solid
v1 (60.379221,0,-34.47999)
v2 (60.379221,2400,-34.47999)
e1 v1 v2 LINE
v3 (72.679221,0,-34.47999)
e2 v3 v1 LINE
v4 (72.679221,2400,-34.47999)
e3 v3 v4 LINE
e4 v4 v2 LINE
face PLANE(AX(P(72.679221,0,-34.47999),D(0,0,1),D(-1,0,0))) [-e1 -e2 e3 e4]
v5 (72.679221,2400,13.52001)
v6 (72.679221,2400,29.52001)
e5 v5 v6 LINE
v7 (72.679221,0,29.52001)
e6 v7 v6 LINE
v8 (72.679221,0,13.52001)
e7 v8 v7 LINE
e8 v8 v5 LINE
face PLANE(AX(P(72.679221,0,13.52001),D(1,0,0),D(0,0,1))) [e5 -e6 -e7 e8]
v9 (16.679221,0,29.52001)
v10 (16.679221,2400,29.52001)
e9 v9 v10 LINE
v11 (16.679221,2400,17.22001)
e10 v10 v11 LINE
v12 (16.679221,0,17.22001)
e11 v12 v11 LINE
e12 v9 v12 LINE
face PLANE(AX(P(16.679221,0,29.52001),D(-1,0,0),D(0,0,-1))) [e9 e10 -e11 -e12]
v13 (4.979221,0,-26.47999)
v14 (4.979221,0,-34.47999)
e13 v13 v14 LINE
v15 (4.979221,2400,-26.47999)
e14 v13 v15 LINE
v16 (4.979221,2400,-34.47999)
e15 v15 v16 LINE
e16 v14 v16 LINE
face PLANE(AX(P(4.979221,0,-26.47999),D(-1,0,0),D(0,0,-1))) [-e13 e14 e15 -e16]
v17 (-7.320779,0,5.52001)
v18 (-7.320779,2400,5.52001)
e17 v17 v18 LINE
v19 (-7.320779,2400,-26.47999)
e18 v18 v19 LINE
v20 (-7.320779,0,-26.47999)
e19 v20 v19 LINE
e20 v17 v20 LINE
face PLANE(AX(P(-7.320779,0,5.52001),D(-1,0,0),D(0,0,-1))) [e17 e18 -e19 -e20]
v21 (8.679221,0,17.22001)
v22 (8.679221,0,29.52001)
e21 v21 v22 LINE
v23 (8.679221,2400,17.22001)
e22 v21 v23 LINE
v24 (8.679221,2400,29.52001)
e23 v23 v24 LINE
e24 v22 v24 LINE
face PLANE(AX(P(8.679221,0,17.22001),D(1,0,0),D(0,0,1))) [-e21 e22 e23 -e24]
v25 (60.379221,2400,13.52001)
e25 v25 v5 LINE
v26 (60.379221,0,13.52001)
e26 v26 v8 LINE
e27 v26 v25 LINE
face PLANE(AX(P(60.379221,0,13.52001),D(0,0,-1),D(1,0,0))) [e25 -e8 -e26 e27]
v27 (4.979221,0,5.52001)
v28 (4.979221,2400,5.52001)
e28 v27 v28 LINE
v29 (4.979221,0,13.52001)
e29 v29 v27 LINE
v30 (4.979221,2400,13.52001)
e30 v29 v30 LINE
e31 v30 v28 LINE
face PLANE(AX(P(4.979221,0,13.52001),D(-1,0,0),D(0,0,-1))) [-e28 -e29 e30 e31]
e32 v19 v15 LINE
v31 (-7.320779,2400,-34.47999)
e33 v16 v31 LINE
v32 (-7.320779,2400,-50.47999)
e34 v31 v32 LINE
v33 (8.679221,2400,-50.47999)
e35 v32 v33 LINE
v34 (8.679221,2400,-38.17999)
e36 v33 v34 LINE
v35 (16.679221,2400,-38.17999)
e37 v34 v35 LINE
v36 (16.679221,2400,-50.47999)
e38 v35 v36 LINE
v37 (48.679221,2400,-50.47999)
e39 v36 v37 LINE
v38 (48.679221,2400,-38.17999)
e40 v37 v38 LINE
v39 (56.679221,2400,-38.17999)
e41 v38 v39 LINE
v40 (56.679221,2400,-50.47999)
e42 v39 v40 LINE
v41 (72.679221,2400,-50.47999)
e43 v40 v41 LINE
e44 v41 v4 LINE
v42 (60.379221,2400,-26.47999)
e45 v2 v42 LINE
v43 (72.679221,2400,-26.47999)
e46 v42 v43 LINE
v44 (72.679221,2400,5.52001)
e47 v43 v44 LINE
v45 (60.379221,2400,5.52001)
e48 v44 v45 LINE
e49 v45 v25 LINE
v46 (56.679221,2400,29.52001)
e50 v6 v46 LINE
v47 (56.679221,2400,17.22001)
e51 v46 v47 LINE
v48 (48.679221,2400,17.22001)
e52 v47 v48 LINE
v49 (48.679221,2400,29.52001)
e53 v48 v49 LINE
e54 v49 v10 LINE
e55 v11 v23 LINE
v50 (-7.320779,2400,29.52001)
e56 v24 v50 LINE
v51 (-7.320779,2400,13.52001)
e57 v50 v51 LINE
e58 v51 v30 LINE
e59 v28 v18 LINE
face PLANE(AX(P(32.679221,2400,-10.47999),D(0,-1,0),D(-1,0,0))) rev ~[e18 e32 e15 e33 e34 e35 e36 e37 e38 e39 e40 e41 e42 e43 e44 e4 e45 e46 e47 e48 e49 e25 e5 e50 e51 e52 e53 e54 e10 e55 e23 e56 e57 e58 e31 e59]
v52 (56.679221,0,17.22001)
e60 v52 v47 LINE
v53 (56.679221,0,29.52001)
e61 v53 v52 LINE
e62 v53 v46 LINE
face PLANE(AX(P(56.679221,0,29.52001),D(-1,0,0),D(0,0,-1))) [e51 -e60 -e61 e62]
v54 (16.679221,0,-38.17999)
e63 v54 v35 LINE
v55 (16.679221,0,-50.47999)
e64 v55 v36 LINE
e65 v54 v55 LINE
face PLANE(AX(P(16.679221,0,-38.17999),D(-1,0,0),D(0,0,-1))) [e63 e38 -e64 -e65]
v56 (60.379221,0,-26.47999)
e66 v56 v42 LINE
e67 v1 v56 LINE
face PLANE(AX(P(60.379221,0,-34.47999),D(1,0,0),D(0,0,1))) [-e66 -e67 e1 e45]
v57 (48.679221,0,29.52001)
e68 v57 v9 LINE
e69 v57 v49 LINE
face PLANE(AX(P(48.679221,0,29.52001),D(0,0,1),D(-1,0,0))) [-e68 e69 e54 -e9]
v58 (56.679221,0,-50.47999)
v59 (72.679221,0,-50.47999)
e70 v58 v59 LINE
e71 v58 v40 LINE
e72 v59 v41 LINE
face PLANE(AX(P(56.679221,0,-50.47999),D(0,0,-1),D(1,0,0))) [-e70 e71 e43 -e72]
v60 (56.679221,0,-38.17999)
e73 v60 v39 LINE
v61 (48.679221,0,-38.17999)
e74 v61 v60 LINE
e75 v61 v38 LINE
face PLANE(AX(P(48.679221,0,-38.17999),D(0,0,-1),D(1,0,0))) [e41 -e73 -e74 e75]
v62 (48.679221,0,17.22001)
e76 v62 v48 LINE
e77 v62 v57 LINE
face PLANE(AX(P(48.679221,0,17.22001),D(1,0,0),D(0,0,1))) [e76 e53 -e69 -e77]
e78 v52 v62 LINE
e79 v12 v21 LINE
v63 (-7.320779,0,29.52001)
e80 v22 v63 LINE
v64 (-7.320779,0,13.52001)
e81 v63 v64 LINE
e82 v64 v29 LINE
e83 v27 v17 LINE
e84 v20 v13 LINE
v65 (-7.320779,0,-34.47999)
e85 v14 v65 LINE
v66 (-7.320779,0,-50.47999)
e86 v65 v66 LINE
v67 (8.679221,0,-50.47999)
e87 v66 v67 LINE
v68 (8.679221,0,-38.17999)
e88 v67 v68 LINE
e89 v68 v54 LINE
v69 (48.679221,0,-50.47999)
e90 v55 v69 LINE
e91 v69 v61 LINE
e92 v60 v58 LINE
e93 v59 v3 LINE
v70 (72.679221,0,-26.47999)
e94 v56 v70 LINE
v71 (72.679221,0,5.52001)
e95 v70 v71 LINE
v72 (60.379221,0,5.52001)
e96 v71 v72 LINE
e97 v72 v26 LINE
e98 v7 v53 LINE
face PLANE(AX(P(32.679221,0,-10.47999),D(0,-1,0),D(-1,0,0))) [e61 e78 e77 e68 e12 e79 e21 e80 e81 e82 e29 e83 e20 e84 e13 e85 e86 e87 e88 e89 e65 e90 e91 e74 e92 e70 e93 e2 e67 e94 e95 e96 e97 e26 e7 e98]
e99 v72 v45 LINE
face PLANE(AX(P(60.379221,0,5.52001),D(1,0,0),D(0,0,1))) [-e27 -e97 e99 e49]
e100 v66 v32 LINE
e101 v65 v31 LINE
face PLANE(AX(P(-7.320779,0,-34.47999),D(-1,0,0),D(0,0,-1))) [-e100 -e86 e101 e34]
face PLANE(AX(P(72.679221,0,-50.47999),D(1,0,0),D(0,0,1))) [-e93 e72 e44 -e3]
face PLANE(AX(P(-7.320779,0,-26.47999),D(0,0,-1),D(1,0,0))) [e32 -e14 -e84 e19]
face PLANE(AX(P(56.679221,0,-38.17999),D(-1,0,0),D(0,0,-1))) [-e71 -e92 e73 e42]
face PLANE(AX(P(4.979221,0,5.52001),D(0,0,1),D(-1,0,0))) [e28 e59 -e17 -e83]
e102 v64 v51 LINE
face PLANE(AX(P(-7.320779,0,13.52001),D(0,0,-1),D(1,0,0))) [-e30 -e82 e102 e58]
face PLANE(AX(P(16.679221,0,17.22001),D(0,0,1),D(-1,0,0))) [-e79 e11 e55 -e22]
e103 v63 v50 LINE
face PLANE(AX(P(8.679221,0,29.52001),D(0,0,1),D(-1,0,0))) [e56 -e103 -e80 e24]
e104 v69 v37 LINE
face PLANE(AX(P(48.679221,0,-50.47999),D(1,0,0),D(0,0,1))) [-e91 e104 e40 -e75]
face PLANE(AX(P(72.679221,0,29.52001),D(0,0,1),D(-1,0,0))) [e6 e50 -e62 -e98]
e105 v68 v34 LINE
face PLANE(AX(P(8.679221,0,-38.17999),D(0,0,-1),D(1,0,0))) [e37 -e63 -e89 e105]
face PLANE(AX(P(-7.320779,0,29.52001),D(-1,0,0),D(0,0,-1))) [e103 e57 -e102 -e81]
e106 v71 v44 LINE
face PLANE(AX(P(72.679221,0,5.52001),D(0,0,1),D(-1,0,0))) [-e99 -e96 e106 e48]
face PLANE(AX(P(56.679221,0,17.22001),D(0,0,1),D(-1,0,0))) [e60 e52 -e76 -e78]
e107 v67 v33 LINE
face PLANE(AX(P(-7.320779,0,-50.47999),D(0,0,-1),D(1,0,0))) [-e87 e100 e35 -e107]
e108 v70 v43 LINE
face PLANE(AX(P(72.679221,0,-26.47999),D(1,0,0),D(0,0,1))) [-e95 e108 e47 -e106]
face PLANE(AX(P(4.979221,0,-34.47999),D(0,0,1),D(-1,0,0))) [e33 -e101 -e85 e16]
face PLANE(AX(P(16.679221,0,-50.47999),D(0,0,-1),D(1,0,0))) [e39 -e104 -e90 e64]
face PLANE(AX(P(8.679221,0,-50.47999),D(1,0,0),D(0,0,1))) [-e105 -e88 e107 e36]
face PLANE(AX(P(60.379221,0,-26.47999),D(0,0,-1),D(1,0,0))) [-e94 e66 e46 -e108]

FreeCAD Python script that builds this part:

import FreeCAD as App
import Part
import Sketcher
Q = App.Units.Quantity


def add_polygon(sketch, points):
    """Adds a closed chain of lines whose ends are joined by coincident constraints."""
    first, n = sketch.GeometryCount, len(points)
    for a, b in zip(points, points[1:] + points[:1]):
        sketch.addGeometry(Part.LineSegment(App.Vector(*a, 0), App.Vector(*b, 0)), False)
    for i in range(n):
        sketch.addConstraint(Sketcher.Constraint("Coincident", first + i, 2, first + (i + 1) % n, 1))

doc = App.newDocument("Part")
body = doc.addObject("PartDesign::Body", "Body")

# Sketch on XZ plane
sketch1 = doc.addObject("Sketcher::SketchObject", "Sketch")
body.addObject(sketch1)
sketch1.AttachmentSupport = (doc.XZ_Plane, [""])
sketch1.MapMode = "FlatFace"
add_polygon(sketch1, [(-7, -50), (-7, -34), (5, -34), (5, -26), (-7, -26), (-7, 6), (5, 6), (5, 14), (-7, 14), (-7, 30), (9, 30), (9, 17), (17, 17), (17, 30), (49, 30), (49, 17), (57, 17), (57, 30), (73, 30), (73, 14), (60, 14), (60, 6), (73, 6), (73, -26), (60, -26), (60, -34), (73, -34), (73, -50), (57, -50), (57, -38), (49, -38), (49, -50), (17, -50), (17, -38), (9, -38), (9, -50)])  # lines 0-35
sketch1.addConstraint(Sketcher.Constraint("Vertical", 0))
sketch1.addConstraint(Sketcher.Constraint("Horizontal", 1))
sketch1.addConstraint(Sketcher.Constraint("Vertical", 2))
sketch1.addConstraint(Sketcher.Constraint("Horizontal", 3))
sketch1.addConstraint(Sketcher.Constraint("Vertical", 4))
sketch1.addConstraint(Sketcher.Constraint("Horizontal", 5))
sketch1.addConstraint(Sketcher.Constraint("Vertical", 6))
sketch1.addConstraint(Sketcher.Constraint("Horizontal", 7))
sketch1.addConstraint(Sketcher.Constraint("Vertical", 8))
sketch1.addConstraint(Sketcher.Constraint("Horizontal", 9))
sketch1.addConstraint(Sketcher.Constraint("Vertical", 10))
sketch1.addConstraint(Sketcher.Constraint("Horizontal", 11))
sketch1.addConstraint(Sketcher.Constraint("Vertical", 12))
sketch1.addConstraint(Sketcher.Constraint("Horizontal", 13))
sketch1.addConstraint(Sketcher.Constraint("Vertical", 14))
sketch1.addConstraint(Sketcher.Constraint("Horizontal", 15))
sketch1.addConstraint(Sketcher.Constraint("Vertical", 16))
sketch1.addConstraint(Sketcher.Constraint("Horizontal", 17))
sketch1.addConstraint(Sketcher.Constraint("Vertical", 18))
sketch1.addConstraint(Sketcher.Constraint("Horizontal", 19))
sketch1.addConstraint(Sketcher.Constraint("Vertical", 20))
sketch1.addConstraint(Sketcher.Constraint("Horizontal", 21))
sketch1.addConstraint(Sketcher.Constraint("Vertical", 22))
sketch1.addConstraint(Sketcher.Constraint("Horizontal", 23))
sketch1.addConstraint(Sketcher.Constraint("Vertical", 24))
sketch1.addConstraint(Sketcher.Constraint("Horizontal", 25))
sketch1.addConstraint(Sketcher.Constraint("Vertical", 26))
sketch1.addConstraint(Sketcher.Constraint("Horizontal", 27))
sketch1.addConstraint(Sketcher.Constraint("Vertical", 28))
sketch1.addConstraint(Sketcher.Constraint("Horizontal", 29))
sketch1.addConstraint(Sketcher.Constraint("Vertical", 30))
sketch1.addConstraint(Sketcher.Constraint("Horizontal", 31))
sketch1.addConstraint(Sketcher.Constraint("Vertical", 32))
sketch1.addConstraint(Sketcher.Constraint("Horizontal", 33))
sketch1.addConstraint(Sketcher.Constraint("Vertical", 34))
sketch1.addConstraint(Sketcher.Constraint("Horizontal", 35))
sketch1.addConstraint(Sketcher.Constraint("Horizontal", 9, 2, 12, 2))
sketch1.addConstraint(Sketcher.Constraint("Horizontal", 11, 2, 14, 2))
sketch1.addConstraint(Sketcher.Constraint("Horizontal", 13, 2, 16, 2))
sketch1.addConstraint(Sketcher.Constraint("Horizontal", 7, 2, 18, 2))
sketch1.addConstraint(Sketcher.Constraint("Horizontal", 5, 2, 20, 2))
sketch1.addConstraint(Sketcher.Constraint("Horizontal", 3, 2, 22, 2))
sketch1.addConstraint(Sketcher.Constraint("Horizontal", 1, 2, 24, 2))
sketch1.addConstraint(Sketcher.Constraint("Horizontal", 27, 2, 30, 2))
sketch1.addConstraint(Sketcher.Constraint("Horizontal", 29, 2, 32, 2))
sketch1.addConstraint(Sketcher.Constraint("Horizontal", 31, 2, 34, 2))
sketch1.addConstraint(Sketcher.Constraint("Vertical", 0, 2, 3, 2))
sketch1.addConstraint(Sketcher.Constraint("Vertical", 2, 2, 5, 2))
sketch1.addConstraint(Sketcher.Constraint("Vertical", 4, 2, 7, 2))
sketch1.addConstraint(Sketcher.Constraint("Vertical", 18, 2, 21, 2))
sketch1.addConstraint(Sketcher.Constraint("Vertical", 20, 2, 23, 2))
sketch1.addConstraint(Sketcher.Constraint("Vertical", 22, 2, 25, 2))
sketch1.addConstraint(Sketcher.Constraint("Vertical", 16, 2, 27, 2))
sketch1.addConstraint(Sketcher.Constraint("Vertical", 14, 2, 29, 2))
sketch1.addConstraint(Sketcher.Constraint("Vertical", 12, 2, 31, 2))
sketch1.addConstraint(Sketcher.Constraint("Vertical", 10, 2, 33, 2))
sketch1.addConstraint(Sketcher.Constraint("Equal", 11, 15))
sketch1.addConstraint(Sketcher.Constraint("Equal", 9, 17))
sketch1.addConstraint(Sketcher.Constraint("Equal", 7, 19))
sketch1.addConstraint(Sketcher.Constraint("Equal", 35, 0))
sketch1.addConstraint(Sketcher.Constraint("Equal", 33, 2))
sketch1.addConstraint(Sketcher.Constraint("Equal", 31, 4))
sketch1.addConstraint(Sketcher.Constraint("Equal", 2, 6))
sketch1.addConstraint(Sketcher.Constraint("Equal", 0, 8))
sketch1.addConstraint(Sketcher.Constraint("Equal", 25, 10))
sketch1.addConstraint(Sketcher.Constraint("Equal", 16, 28))
sketch1.addConstraint(Sketcher.Constraint("DistanceX", 9, 1, 9, 2, Q("16 mm")))
sketch1.addConstraint(Sketcher.Constraint("DistanceX", 11, 1, 11, 2, Q("8 mm")))
sketch1.addConstraint(Sketcher.Constraint("DistanceX", 13, 1, 13, 2, Q("32 mm")))
sketch1.addConstraint(Sketcher.Constraint("DistanceX", 1, 1, 1, 2, Q("12.3 mm")))
sketch1.addConstraint(Sketcher.Constraint("DistanceX", 0, 2, -1, 1, Q("7.320779 mm")))
sketch1.addConstraint(Sketcher.Constraint("DistanceY", 0, 2, -1, 1, Q("34.47999 mm")))
pad1 = doc.addObject("PartDesign::Pad", "Pad")
body.addObject(pad1)
pad1.Profile = sketch1
pad1.Length = 2400
pad1.Reversed = True

doc.recompute()
